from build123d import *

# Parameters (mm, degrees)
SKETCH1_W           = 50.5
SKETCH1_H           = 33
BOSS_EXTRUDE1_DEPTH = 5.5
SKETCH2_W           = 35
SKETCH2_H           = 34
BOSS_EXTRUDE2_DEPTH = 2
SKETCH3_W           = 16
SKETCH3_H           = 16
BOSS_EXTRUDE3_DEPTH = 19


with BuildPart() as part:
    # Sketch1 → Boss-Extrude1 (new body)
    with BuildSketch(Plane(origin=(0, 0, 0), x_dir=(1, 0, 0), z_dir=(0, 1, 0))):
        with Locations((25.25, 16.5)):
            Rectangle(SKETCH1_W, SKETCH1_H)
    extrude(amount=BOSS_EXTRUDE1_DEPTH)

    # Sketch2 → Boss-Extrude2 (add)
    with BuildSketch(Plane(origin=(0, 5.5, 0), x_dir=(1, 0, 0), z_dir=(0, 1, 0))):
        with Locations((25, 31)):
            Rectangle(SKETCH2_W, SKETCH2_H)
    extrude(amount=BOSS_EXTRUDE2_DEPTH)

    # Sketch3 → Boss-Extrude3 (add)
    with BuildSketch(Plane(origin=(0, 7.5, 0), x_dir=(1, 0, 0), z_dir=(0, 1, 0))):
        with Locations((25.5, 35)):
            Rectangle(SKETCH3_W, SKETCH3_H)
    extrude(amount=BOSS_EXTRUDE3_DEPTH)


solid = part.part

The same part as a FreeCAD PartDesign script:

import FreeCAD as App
import Part
import Sketcher

V = App.Vector

doc = App.newDocument("Part")
body = doc.addObject("PartDesign::Body", "Body")

sketch1 = body.newObject("Sketcher::SketchObject", "Sketch")
sketch1.AttachmentSupport = (doc.getObject("XZ_Plane"), [""])
sketch1.MapMode = "FlatFace"
sketch1.addGeometry([
    Part.LineSegment(V(0, -33, 0), V(0, 0, 0)),
    Part.LineSegment(V(0, 0, 0), V(50, 0, 0)),
    Part.LineSegment(V(50, 0, 0), V(50, -33, 0)),
    Part.LineSegment(V(50, -33, 0), V(0, -33, 0)),
], False)
sketch1.addConstraint([
    Sketcher.Constraint("Coincident", 0, 2, 1, 1),
    Sketcher.Constraint("Coincident", 1, 2, 2, 1),
    Sketcher.Constraint("Coincident", 2, 2, 3, 1),
    Sketcher.Constraint("Coincident", 3, 2, 0, 1),
    Sketcher.Constraint("Vertical", 0),
    Sketcher.Constraint("Horizontal", 1),
    Sketcher.Constraint("Vertical", 2),
    Sketcher.Constraint("Horizontal", 3),
    Sketcher.Constraint("Coincident", 0, 2, -1, 1),
    Sketcher.Constraint("DistanceY", 0, 1, 0, 2, 33.0),
    Sketcher.Constraint("DistanceX", 1, 1, 1, 2, 50.5),
])
pad1 = body.newObject("PartDesign::Pad", "Pad")
pad1.Profile = sketch1
pad1.Length = 5.5
pad1.Reversed = True

sketch2 = body.newObject("Sketcher::SketchObject", "Sketch001")
sketch2.AttachmentSupport = (doc.getObject("XZ_Plane"), [""])
sketch2.MapMode = "FlatFace"
sketch2.AttachmentOffset = App.Placement(V(0, 0, -5.5), App.Rotation())
sketch2.addGeometry([
    Part.LineSegment(V(8, -48, 0), V(8, -14, 0)),
    Part.LineSegment(V(8, -14, 0), V(42, -14, 0)),
    Part.LineSegment(V(42, -14, 0), V(42, -48, 0)),
    Part.LineSegment(V(42, -48, 0), V(8, -48, 0)),
], False)
sketch2.addConstraint([
    Sketcher.Constraint("Coincident", 0, 2, 1, 1),
    Sketcher.Constraint("Coincident", 1, 2, 2, 1),
    Sketcher.Constraint("Coincident", 2, 2, 3, 1),
    Sketcher.Constraint("Coincident", 3, 2, 0, 1),
    Sketcher.Constraint("Vertical", 0),
    Sketcher.Constraint("Horizontal", 1),
    Sketcher.Constraint("Vertical", 2),
    Sketcher.Constraint("Horizontal", 3),
    Sketcher.Constraint("DistanceX", 1, 1, 1, 2, 35.0),
    Sketcher.Constraint("DistanceY", 0, 1, 0, 2, 34.0),
    Sketcher.Constraint("DistanceY", 0, 2, -1, 1, 14.0),
    Sketcher.Constraint("DistanceX", -1, 1, 0, 2, 7.5),
])
pad2 = body.newObject("PartDesign::Pad", "Pad001")
pad2.Profile = sketch2
pad2.Length = 2
pad2.Reversed = True

sketch3 = body.newObject("Sketcher::SketchObject", "Sketch002")
sketch3.AttachmentSupport = (doc.getObject("XZ_Plane"), [""])
sketch3.MapMode = "FlatFace"
sketch3.AttachmentOffset = App.Placement(V(0, 0, -7.5), App.Rotation())
sketch3.addGeometry([
    Part.LineSegment(V(18, -43, 0), V(18, -27, 0)),
    Part.LineSegment(V(18, -27, 0), V(34, -27, 0)),
    Part.LineSegment(V(34, -27, 0), V(34, -43, 0)),
    Part.LineSegment(V(34, -43, 0), V(18, -43, 0)),
], False)
sketch3.addConstraint([
    Sketcher.Constraint("Coincident", 0, 2, 1, 1),
    Sketcher.Constraint("Coincident", 1, 2, 2, 1),
    Sketcher.Constraint("Coincident", 2, 2, 3, 1),
    Sketcher.Constraint("Coincident", 3, 2, 0, 1),
    Sketcher.Constraint("Vertical", 0),
    Sketcher.Constraint("Horizontal", 1),
    Sketcher.Constraint("Vertical", 2),
    Sketcher.Constraint("Horizontal", 3),
    Sketcher.Constraint("Equal", 3, 0),
    Sketcher.Constraint("DistanceX", 1, 1, 1, 2, 16.0),
    Sketcher.Constraint("DistanceY", 0, 2, -1, 1, 27.0),
    Sketcher.Constraint("DistanceX", -1, 1, 0, 2, 17.5),
])
pad3 = body.newObject("PartDesign::Pad", "Pad002")
pad3.Profile = sketch3
pad3.Length = 19
pad3.Reversed = True

doc.recompute()
